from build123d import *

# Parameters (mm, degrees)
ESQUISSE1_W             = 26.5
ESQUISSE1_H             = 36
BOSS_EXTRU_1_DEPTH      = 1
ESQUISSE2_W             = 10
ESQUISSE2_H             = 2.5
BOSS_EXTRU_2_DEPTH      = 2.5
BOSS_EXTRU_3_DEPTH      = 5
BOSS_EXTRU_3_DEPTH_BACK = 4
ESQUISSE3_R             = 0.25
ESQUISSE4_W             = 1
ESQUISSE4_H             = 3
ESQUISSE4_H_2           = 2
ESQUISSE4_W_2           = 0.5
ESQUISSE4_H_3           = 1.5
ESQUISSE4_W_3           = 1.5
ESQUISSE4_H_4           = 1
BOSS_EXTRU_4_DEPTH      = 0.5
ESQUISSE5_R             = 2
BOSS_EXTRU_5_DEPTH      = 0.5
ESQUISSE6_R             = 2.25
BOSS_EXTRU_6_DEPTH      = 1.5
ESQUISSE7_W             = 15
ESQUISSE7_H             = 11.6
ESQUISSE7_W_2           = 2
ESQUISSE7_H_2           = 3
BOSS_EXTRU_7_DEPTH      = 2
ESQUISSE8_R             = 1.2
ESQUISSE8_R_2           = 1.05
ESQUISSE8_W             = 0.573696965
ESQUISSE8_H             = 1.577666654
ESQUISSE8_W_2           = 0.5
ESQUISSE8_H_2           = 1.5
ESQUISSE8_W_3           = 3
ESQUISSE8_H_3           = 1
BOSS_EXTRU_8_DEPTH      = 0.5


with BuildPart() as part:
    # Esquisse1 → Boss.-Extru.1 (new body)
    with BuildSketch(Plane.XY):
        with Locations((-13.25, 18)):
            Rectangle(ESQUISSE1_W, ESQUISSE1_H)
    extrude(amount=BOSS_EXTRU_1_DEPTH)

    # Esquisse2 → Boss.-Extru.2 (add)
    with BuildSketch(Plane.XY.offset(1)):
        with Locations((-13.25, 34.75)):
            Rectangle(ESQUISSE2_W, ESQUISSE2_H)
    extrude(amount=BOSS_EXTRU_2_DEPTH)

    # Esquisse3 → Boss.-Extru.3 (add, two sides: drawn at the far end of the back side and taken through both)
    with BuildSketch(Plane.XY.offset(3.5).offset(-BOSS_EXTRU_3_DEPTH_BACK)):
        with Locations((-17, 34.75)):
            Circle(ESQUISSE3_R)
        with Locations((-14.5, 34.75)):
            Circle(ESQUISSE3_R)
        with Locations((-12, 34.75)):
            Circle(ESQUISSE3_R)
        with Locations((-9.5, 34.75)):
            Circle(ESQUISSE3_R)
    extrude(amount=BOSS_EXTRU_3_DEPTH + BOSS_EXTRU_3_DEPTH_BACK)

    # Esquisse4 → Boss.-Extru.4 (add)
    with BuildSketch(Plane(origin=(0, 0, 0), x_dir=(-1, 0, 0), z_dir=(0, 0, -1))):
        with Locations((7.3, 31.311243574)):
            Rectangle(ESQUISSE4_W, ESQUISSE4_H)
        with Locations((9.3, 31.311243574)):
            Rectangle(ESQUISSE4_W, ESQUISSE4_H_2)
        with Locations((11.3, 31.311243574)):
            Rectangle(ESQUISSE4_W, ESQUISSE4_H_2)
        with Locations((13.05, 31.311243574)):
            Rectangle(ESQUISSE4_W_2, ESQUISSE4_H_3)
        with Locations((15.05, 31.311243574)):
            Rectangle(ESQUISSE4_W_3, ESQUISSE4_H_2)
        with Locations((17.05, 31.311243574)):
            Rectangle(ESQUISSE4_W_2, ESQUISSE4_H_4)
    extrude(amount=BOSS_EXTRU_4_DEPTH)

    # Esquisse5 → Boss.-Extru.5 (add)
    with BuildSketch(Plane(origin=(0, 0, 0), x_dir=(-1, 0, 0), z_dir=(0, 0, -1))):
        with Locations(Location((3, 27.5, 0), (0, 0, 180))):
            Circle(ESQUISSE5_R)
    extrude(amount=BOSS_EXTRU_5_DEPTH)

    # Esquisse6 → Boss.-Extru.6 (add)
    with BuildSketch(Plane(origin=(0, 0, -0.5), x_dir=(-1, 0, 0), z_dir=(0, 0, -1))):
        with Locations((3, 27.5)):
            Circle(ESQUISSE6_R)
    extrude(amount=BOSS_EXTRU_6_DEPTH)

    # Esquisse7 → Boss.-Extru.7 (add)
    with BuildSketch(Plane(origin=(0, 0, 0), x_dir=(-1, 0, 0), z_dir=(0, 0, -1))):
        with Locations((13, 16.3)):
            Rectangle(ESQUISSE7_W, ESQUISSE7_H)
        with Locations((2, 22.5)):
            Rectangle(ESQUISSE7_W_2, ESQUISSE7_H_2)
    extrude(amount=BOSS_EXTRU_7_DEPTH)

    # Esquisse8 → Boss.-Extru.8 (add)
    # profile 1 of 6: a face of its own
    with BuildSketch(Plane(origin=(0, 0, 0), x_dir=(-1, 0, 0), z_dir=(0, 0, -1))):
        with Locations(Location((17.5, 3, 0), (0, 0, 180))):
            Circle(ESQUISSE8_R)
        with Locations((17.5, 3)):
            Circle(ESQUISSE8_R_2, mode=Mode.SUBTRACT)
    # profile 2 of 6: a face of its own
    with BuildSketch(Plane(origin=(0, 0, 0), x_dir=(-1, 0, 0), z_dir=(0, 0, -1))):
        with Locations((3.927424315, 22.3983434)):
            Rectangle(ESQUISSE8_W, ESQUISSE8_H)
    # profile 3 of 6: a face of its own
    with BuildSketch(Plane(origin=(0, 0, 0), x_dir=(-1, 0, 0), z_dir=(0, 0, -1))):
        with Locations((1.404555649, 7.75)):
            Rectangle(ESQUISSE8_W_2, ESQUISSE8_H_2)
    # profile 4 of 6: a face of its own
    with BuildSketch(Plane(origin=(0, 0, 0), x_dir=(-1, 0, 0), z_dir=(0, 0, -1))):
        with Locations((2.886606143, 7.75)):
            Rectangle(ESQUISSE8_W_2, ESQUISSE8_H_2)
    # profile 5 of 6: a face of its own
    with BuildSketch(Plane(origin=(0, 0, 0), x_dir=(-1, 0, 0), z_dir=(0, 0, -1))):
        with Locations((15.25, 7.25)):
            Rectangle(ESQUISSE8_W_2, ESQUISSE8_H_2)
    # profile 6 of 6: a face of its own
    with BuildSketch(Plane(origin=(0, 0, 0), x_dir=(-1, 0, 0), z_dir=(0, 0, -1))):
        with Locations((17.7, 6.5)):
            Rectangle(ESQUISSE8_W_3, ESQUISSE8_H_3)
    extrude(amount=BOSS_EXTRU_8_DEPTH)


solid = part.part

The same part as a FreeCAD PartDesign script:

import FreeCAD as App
import Part
import Sketcher
from FreeCAD import Vector

doc = App.newDocument("Part")
params = doc.addObject("Spreadsheet::Sheet", "Params")
for row, (alias, value) in enumerate([
    ("sketch1_height", "36 mm"),
    ("sketch1_width", "26.5 mm"),
    ("pad1_length", "1 mm"),
    ("sketch2_width", "10 mm"),
    ("sketch2_height", "2.5 mm"),
    ("pad2_length", "2.5 mm"),
    ("sketch3_diameter", "0.5 mm"),
    ("pad3_length", "5 mm"),
    ("pad3_length2", "4 mm"),
    ("sketch4_width", "1 mm"),
    ("sketch4_height", "3 mm"),
    ("sketch4_height2", "2 mm"),
    ("sketch4_width2", "0.5 mm"),
    ("sketch4_width3", "1.5 mm"),
    ("pad4_length", "0.5 mm"),
    ("sketch5_diameter", "4 mm"),
    ("pad5_length", "0.5 mm"),
    ("sketch6_diameter", "4.5 mm"),
    ("pad6_length", "1.5 mm"),
    ("sketch7_width", "15 mm"),
    ("sketch7_width2", "2 mm"),
    ("sketch7_height", "3 mm"),
    ("sketch7_height2", "11.6 mm"),
    ("pad7_length", "2 mm"),
    ("sketch8_diameter", "2.4 mm"),
    ("sketch8_diameter2", "2.1 mm"),
    ("sketch8_width", "3 mm"),
    ("sketch8_height", "1 mm"),
    ("sketch8_width2", "0.5 mm"),
    ("pad8_length", "0.5 mm"),
], start=1):
    params.set(f"A{row}", alias)
    params.set(f"B{row}", "=" + value)
    params.setAlias(f"B{row}", alias)

body = doc.addObject("PartDesign::Body", "Body")

sketch1 = body.newObject("Sketcher::SketchObject", "Sketch")
sketch1.AttachmentSupport = (doc.getObject("XY_Plane"), [""])
sketch1.MapMode = "FlatFace"
sketch1.addGeometry(Part.LineSegment(Vector(-26.5, 36, 0), Vector(-26.5, 0, 0)), False)
sketch1.addGeometry(Part.LineSegment(Vector(-26.5, 0, 0), Vector(0, 0, 0)), False)
sketch1.addGeometry(Part.LineSegment(Vector(0, 0, 0), Vector(0, 36, 0)), False)
sketch1.addGeometry(Part.LineSegment(Vector(0, 36, 0), Vector(-26.5, 36, 0)), False)
sketch1.addConstraint(Sketcher.Constraint("Coincident", 0, 2, 1, 1))
sketch1.addConstraint(Sketcher.Constraint("Coincident", 1, 2, 2, 1))
sketch1.addConstraint(Sketcher.Constraint("Coincident", 2, 2, 3, 1))
sketch1.addConstraint(Sketcher.Constraint("Coincident", 3, 2, 0, 1))
sketch1.addConstraint(Sketcher.Constraint("Vertical", 0))
sketch1.addConstraint(Sketcher.Constraint("Horizontal", 1))
sketch1.addConstraint(Sketcher.Constraint("Vertical", 2))
sketch1.addConstraint(Sketcher.Constraint("Horizontal", 3))
sketch1.addConstraint(Sketcher.Constraint("Coincident", 1, 2, -1, 1))
sketch1.addConstraint(Sketcher.Constraint("DistanceY", 0, 2, 0, 1, 36.0))
sketch1.addConstraint(Sketcher.Constraint("DistanceX", 1, 1, 1, 2, 26.5))
sketch1.setExpression("Constraints[9]", "Params.sketch1_height")
sketch1.setExpression("Constraints[10]", "Params.sketch1_width")
pad1 = body.newObject("PartDesign::Pad", "Pad")
pad1.Profile = sketch1
pad1.setExpression("Length", "Params.pad1_length")

sketch2 = body.newObject("Sketcher::SketchObject", "Sketch001")
sketch2.AttachmentSupport = (doc.getObject("XY_Plane"), [""])
sketch2.MapMode = "FlatFace"
sketch2.AttachmentOffset = App.Placement(Vector(0, 0, 1), App.Rotation())
sketch2.addGeometry(Part.LineSegment(Vector(-18.25, 36, 0), Vector(-18.25, 33.5, 0)), False)
sketch2.addGeometry(Part.LineSegment(Vector(-18.25, 33.5, 0), Vector(-8.25, 33.5, 0)), False)
sketch2.addGeometry(Part.LineSegment(Vector(-8.25, 33.5, 0), Vector(-8.25, 36, 0)), False)
sketch2.addGeometry(Part.LineSegment(Vector(-8.25, 36, 0), Vector(-18.25, 36, 0)), False)
sketch2.addConstraint(Sketcher.Constraint("Coincident", 0, 2, 1, 1))
sketch2.addConstraint(Sketcher.Constraint("Coincident", 1, 2, 2, 1))
sketch2.addConstraint(Sketcher.Constraint("Coincident", 2, 2, 3, 1))
sketch2.addConstraint(Sketcher.Constraint("Coincident", 3, 2, 0, 1))
sketch2.addConstraint(Sketcher.Constraint("Vertical", 0))
sketch2.addConstraint(Sketcher.Constraint("Horizontal", 1))
sketch2.addConstraint(Sketcher.Constraint("Vertical", 2))
sketch2.addConstraint(Sketcher.Constraint("Horizontal", 3))
sketch2.addConstraint(Sketcher.Constraint("DistanceX", 1, 1, 1, 2, 10.0))
sketch2.addConstraint(Sketcher.Constraint("DistanceY", 0, 2, 0, 1, 2.5))
sketch2.addConstraint(Sketcher.Constraint("DistanceY", -1, 1, 2, 2, 36.0))
sketch2.addConstraint(Sketcher.Constraint("DistanceX", 0, 2, -1, 1, 18.25))
sketch2.setExpression("Constraints[8]", "Params.sketch2_width")
sketch2.setExpression("Constraints[9]", "Params.sketch2_height")
pad2 = body.newObject("PartDesign::Pad", "Pad001")
pad2.Profile = sketch2
pad2.setExpression("Length", "Params.pad2_length")

sketch3 = body.newObject("Sketcher::SketchObject", "Sketch002")
sketch3.AttachmentSupport = (doc.getObject("XY_Plane"), [""])
sketch3.MapMode = "FlatFace"
sketch3.AttachmentOffset = App.Placement(Vector(0, 0, 3.5), App.Rotation())
sketch3.addGeometry(Part.Circle(Vector(-17, 34.75, 0), Vector(0, 0, 1), 0.25), False)
sketch3.addGeometry(Part.Circle(Vector(-14.5, 34.75, 0), Vector(0, 0, 1), 0.25), False)
sketch3.addGeometry(Part.Circle(Vector(-12, 34.75, 0), Vector(0, 0, 1), 0.25), False)
sketch3.addGeometry(Part.Circle(Vector(-9.5, 34.75, 0), Vector(0, 0, 1), 0.25), False)
sketch3.addConstraint(Sketcher.Constraint("Equal", 0, 1))
sketch3.addConstraint(Sketcher.Constraint("Equal", 1, 2))
sketch3.addConstraint(Sketcher.Constraint("Equal", 2, 3))
sketch3.addConstraint(Sketcher.Constraint("Horizontal", 0, 3, 1, 3))
sketch3.addConstraint(Sketcher.Constraint("Horizontal", 1, 3, 2, 3))
sketch3.addConstraint(Sketcher.Constraint("Horizontal", 2, 3, 3, 3))
sketch3.addConstraint(Sketcher.Constraint("Diameter", 0, 0.5))
sketch3.addConstraint(Sketcher.Constraint("DistanceX", 0, 3, -1, 1, 17.0))
sketch3.addConstraint(Sketcher.Constraint("DistanceX", 2, 3, -1, 1, 12.0))
sketch3.addConstraint(Sketcher.Constraint("DistanceX", 1, 3, 3, 3, 5.0))
sketch3.addConstraint(Sketcher.Constraint("DistanceX", 1, 3, -1, 1, 14.5))
sketch3.addConstraint(Sketcher.Constraint("DistanceY", -1, 1, 0, 3, 34.75))
sketch3.setExpression("Constraints[6]", "Params.sketch3_diameter")
pad3 = body.newObject("PartDesign::Pad", "Pad002")
pad3.Profile = sketch3
pad3.Type = "TwoLengths"
pad3.setExpression("Length", "Params.pad3_length")
pad3.setExpression("Length2", "Params.pad3_length2")

sketch4 = body.newObject("Sketcher::SketchObject", "Sketch003")
sketch4.AttachmentSupport = (doc.getObject("XY_Plane"), [""])
sketch4.MapMode = "FlatFace"
sketch4.addGeometry(Part.LineSegment(Vector(-6.8, 32.811244, 0), Vector(-6.8, 29.811244, 0)), False)
sketch4.addGeometry(Part.LineSegment(Vector(-6.8, 29.811244, 0), Vector(-7.8, 29.811244, 0)), False)
sketch4.addGeometry(Part.LineSegment(Vector(-7.8, 29.811244, 0), Vector(-7.8, 32.811244, 0)), False)
sketch4.addGeometry(Part.LineSegment(Vector(-7.8, 32.811244, 0), Vector(-6.8, 32.811244, 0)), False)
sketch4.addGeometry(Part.LineSegment(Vector(-8.8, 32.311244, 0), Vector(-8.8, 30.311244, 0)), False)
sketch4.addGeometry(Part.LineSegment(Vector(-8.8, 30.311244, 0), Vector(-9.8, 30.311244, 0)), False)
sketch4.addGeometry(Part.LineSegment(Vector(-9.8, 30.311244, 0), Vector(-9.8, 32.311244, 0)), False)
sketch4.addGeometry(Part.LineSegment(Vector(-9.8, 32.311244, 0), Vector(-8.8, 32.311244, 0)), False)
sketch4.addGeometry(Part.LineSegment(Vector(-10.8, 32.311244, 0), Vector(-10.8, 30.311244, 0)), False)
sketch4.addGeometry(Part.LineSegment(Vector(-10.8, 30.311244, 0), Vector(-11.8, 30.311244, 0)), False)
sketch4.addGeometry(Part.LineSegment(Vector(-11.8, 30.311244, 0), Vector(-11.8, 32.311244, 0)), False)
sketch4.addGeometry(Part.LineSegment(Vector(-11.8, 32.311244, 0), Vector(-10.8, 32.311244, 0)), False)
sketch4.addGeometry(Part.LineSegment(Vector(-12.8, 32.061244, 0), Vector(-12.8, 30.561244, 0)), False)
sketch4.addGeometry(Part.LineSegment(Vector(-12.8, 30.561244, 0), Vector(-13.3, 30.561244, 0)), False)
sketch4.addGeometry(Part.LineSegment(Vector(-13.3, 30.561244, 0), Vector(-13.3, 32.061244, 0)), False)
sketch4.addGeometry(Part.LineSegment(Vector(-13.3, 32.061244, 0), Vector(-12.8, 32.061244, 0)), False)
sketch4.addGeometry(Part.LineSegment(Vector(-14.3, 32.311244, 0), Vector(-14.3, 30.311244, 0)), False)
sketch4.addGeometry(Part.LineSegment(Vector(-14.3, 30.311244, 0), Vector(-15.8, 30.311244, 0)), False)
sketch4.addGeometry(Part.LineSegment(Vector(-15.8, 30.311244, 0), Vector(-15.8, 32.311244, 0)), False)
sketch4.addGeometry(Part.LineSegment(Vector(-15.8, 32.311244, 0), Vector(-14.3, 32.311244, 0)), False)
sketch4.addGeometry(Part.LineSegment(Vector(-16.8, 31.811244, 0), Vector(-16.8, 30.811244, 0)), False)
sketch4.addGeometry(Part.LineSegment(Vector(-16.8, 30.811244, 0), Vector(-17.3, 30.811244, 0)), False)
sketch4.addGeometry(Part.LineSegment(Vector(-17.3, 30.811244, 0), Vector(-17.3, 31.811244, 0)), False)
sketch4.addGeometry(Part.LineSegment(Vector(-17.3, 31.811244, 0), Vector(-16.8, 31.811244, 0)), False)
sketch4.addConstraint(Sketcher.Constraint("Coincident", 0, 2, 1, 1))
sketch4.addConstraint(Sketcher.Constraint("Coincident", 1, 2, 2, 1))
sketch4.addConstraint(Sketcher.Constraint("Coincident", 2, 2, 3, 1))
sketch4.addConstraint(Sketcher.Constraint("Coincident", 3, 2, 0, 1))
sketch4.addConstraint(Sketcher.Constraint("Coincident", 4, 2, 5, 1))
sketch4.addConstraint(Sketcher.Constraint("Coincident", 5, 2, 6, 1))
sketch4.addConstraint(Sketcher.Constraint("Coincident", 6, 2, 7, 1))
sketch4.addConstraint(Sketcher.Constraint("Coincident", 7, 2, 4, 1))
sketch4.addConstraint(Sketcher.Constraint("Coincident", 8, 2, 9, 1))
sketch4.addConstraint(Sketcher.Constraint("Coincident", 9, 2, 10, 1))
sketch4.addConstraint(Sketcher.Constraint("Coincident", 10, 2, 11, 1))
sketch4.addConstraint(Sketcher.Constraint("Coincident", 11, 2, 8, 1))
sketch4.addConstraint(Sketcher.Constraint("Coincident", 12, 2, 13, 1))
sketch4.addConstraint(Sketcher.Constraint("Coincident", 13, 2, 14, 1))
sketch4.addConstraint(Sketcher.Constraint("Coincident", 14, 2, 15, 1))
sketch4.addConstraint(Sketcher.Constraint("Coincident", 15, 2, 12, 1))
sketch4.addConstraint(Sketcher.Constraint("Coincident", 16, 2, 17, 1))
sketch4.addConstraint(Sketcher.Constraint("Coincident", 17, 2, 18, 1))
sketch4.addConstraint(Sketcher.Constraint("Coincident", 18, 2, 19, 1))
sketch4.addConstraint(Sketcher.Constraint("Coincident", 19, 2, 16, 1))
sketch4.addConstraint(Sketcher.Constraint("Coincident", 20, 2, 21, 1))
sketch4.addConstraint(Sketcher.Constraint("Coincident", 21, 2, 22, 1))
sketch4.addConstraint(Sketcher.Constraint("Coincident", 22, 2, 23, 1))
sketch4.addConstraint(Sketcher.Constraint("Coincident", 23, 2, 20, 1))
sketch4.addConstraint(Sketcher.Constraint("Vertical", 0))
sketch4.addConstraint(Sketcher.Constraint("Horizontal", 1))
sketch4.addConstraint(Sketcher.Constraint("Vertical", 2))
sketch4.addConstraint(Sketcher.Constraint("Horizontal", 3))
sketch4.addConstraint(Sketcher.Constraint("Vertical", 4))
sketch4.addConstraint(Sketcher.Constraint("Horizontal", 5))
sketch4.addConstraint(Sketcher.Constraint("Vertical", 6))
sketch4.addConstraint(Sketcher.Constraint("Horizontal", 7))
sketch4.addConstraint(Sketcher.Constraint("Vertical", 8))
sketch4.addConstraint(Sketcher.Constraint("Horizontal", 9))
sketch4.addConstraint(Sketcher.Constraint("Vertical", 10))
sketch4.addConstraint(Sketcher.Constraint("Horizontal", 11))
sketch4.addConstraint(Sketcher.Constraint("Vertical", 12))
sketch4.addConstraint(Sketcher.Constraint("Horizontal", 13))
sketch4.addConstraint(Sketcher.Constraint("Vertical", 14))
sketch4.addConstraint(Sketcher.Constraint("Horizontal", 15))
sketch4.addConstraint(Sketcher.Constraint("Vertical", 16))
sketch4.addConstraint(Sketcher.Constraint("Horizontal", 17))
sketch4.addConstraint(Sketcher.Constraint("Vertical", 18))
sketch4.addConstraint(Sketcher.Constraint("Horizontal", 19))
sketch4.addConstraint(Sketcher.Constraint("Vertical", 20))
sketch4.addConstraint(Sketcher.Constraint("Horizontal", 21))
sketch4.addConstraint(Sketcher.Constraint("Vertical", 22))
sketch4.addConstraint(Sketcher.Constraint("Horizontal", 23))
sketch4.addConstraint(Sketcher.Constraint("Horizontal", 5, 2, 8, 2))
sketch4.addConstraint(Sketcher.Constraint("Horizontal", 7, 2, 10, 2))
sketch4.addConstraint(Sketcher.Constraint("Horizontal", 9, 2, 16, 2))
sketch4.addConstraint(Sketcher.Constraint("Horizontal", 11, 2, 18, 2))
sketch4.addConstraint(Sketcher.Constraint("Equal", 3, 5))
sketch4.addConstraint(Sketcher.Constraint("Equal", 7, 9))
sketch4.addConstraint(Sketcher.Constraint("Equal", 15, 21))
sketch4.addConstraint(Sketcher.Constraint("Equal", 19, 12))
sketch4.addConstraint(Sketcher.Constraint("Equal", 11, 20))
sketch4.addConstraint(Sketcher.Constraint("DistanceX", 1, 2, 1, 1, 1.0))
sketch4.addConstraint(Sketcher.Constraint("DistanceY", 0, 2, 0, 1, 3.0))
sketch4.addConstraint(Sketcher.Constraint("DistanceY", 4, 2, 4, 1, 2.0))
sketch4.addConstraint(Sketcher.Constraint("DistanceX", 13, 2, 13, 1, 0.5))
sketch4.addConstraint(Sketcher.Constraint("DistanceX", 17, 2, 17, 1, 1.5))
sketch4.addConstraint(Sketcher.Constraint("DistanceX", 4, 2, 1, 2, 1.0))
sketch4.addConstraint(Sketcher.Constraint("DistanceX", 8, 2, 5, 2, 1.0))
sketch4.addConstraint(Sketcher.Constraint("DistanceX", 12, 2, 9, 2, 1.0))
sketch4.addConstraint(Sketcher.Constraint("DistanceX", 16, 2, 13, 2, 1.0))
sketch4.addConstraint(Sketcher.Constraint("DistanceX", 20, 2, 17, 2, 1.0))
sketch4.addConstraint(Sketcher.Constraint("DistanceX", 0, 2, -1, 1, 6.8))
sketch4.addConstraint(Sketcher.Constraint("DistanceY", 1, 2, 4, 2, 0.5))
sketch4.addConstraint(Sketcher.Constraint("DistanceY", 17, 2, 20, 2, 0.5))
sketch4.addConstraint(Sketcher.Constraint("DistanceY", 9, 2, 12, 2, 0.25))
sketch4.addConstraint(Sketcher.Constraint("DistanceY", -1, 1, 0, 2, 29.811244))
sketch4.setExpression("Constraints[57]", "Params.sketch4_width")
sketch4.setExpression("Constraints[58]", "Params.sketch4_height")
sketch4.setExpression("Constraints[59]", "Params.sketch4_height2")
sketch4.setExpression("Constraints[60]", "Params.sketch4_width2")
sketch4.setExpression("Constraints[61]", "Params.sketch4_width3")
pad4 = body.newObject("PartDesign::Pad", "Pad003")
pad4.Profile = sketch4
pad4.setExpression("Length", "Params.pad4_length")
pad4.Reversed = True

sketch5 = body.newObject("Sketcher::SketchObject", "Sketch004")
sketch5.AttachmentSupport = (doc.getObject("XY_Plane"), [""])
sketch5.MapMode = "FlatFace"
sketch5.addGeometry(Part.Circle(Vector(-3, 27.5, 0), Vector(0, 0, 1), 2), False)
sketch5.addConstraint(Sketcher.Constraint("Diameter", 0, 4.0))
sketch5.addConstraint(Sketcher.Constraint("DistanceX", 0, 3, -1, 1, 3.0))
sketch5.addConstraint(Sketcher.Constraint("DistanceY", -1, 1, 0, 3, 27.5))
sketch5.setExpression("Constraints[0]", "Params.sketch5_diameter")
pad5 = body.newObject("PartDesign::Pad", "Pad004")
pad5.Profile = sketch5
pad5.setExpression("Length", "Params.pad5_length")
pad5.Reversed = True

sketch6 = body.newObject("Sketcher::SketchObject", "Sketch005")
sketch6.AttachmentSupport = (doc.getObject("XY_Plane"), [""])
sketch6.MapMode = "FlatFace"
sketch6.AttachmentOffset = App.Placement(Vector(0, 0, -0.5), App.Rotation())
sketch6.addGeometry(Part.Circle(Vector(-3, 27.5, 0), Vector(0, 0, 1), 2.25), False)
sketch6.addConstraint(Sketcher.Constraint("Diameter", 0, 4.5))
sketch6.addConstraint(Sketcher.Constraint("DistanceX", 0, 3, -1, 1, 3.0))
sketch6.addConstraint(Sketcher.Constraint("DistanceY", -1, 1, 0, 3, 27.5))
sketch6.setExpression("Constraints[0]", "Params.sketch6_diameter")
pad6 = body.newObject("PartDesign::Pad", "Pad005")
pad6.Profile = sketch6
pad6.setExpression("Length", "Params.pad6_length")
pad6.Reversed = True

sketch7 = body.newObject("Sketcher::SketchObject", "Sketch006")
sketch7.AttachmentSupport = (doc.getObject("XY_Plane"), [""])
sketch7.MapMode = "FlatFace"
sketch7.addGeometry(Part.LineSegment(Vector(-5.5, 22.1, 0), Vector(-5.5, 10.5, 0)), False)
sketch7.addGeometry(Part.LineSegment(Vector(-5.5, 10.5, 0), Vector(-20.5, 10.5, 0)), False)
sketch7.addGeometry(Part.LineSegment(Vector(-20.5, 10.5, 0), Vector(-20.5, 22.1, 0)), False)
sketch7.addGeometry(Part.LineSegment(Vector(-20.5, 22.1, 0), Vector(-5.5, 22.1, 0)), False)
sketch7.addGeometry(Part.LineSegment(Vector(-1, 24, 0), Vector(-1, 21, 0)), False)
sketch7.addGeometry(Part.LineSegment(Vector(-1, 21, 0), Vector(-3, 21, 0)), False)
sketch7.addGeometry(Part.LineSegment(Vector(-3, 21, 0), Vector(-3, 24, 0)), False)
sketch7.addGeometry(Part.LineSegment(Vector(-3, 24, 0), Vector(-1, 24, 0)), False)
sketch7.addConstraint(Sketcher.Constraint("Coincident", 0, 2, 1, 1))
sketch7.addConstraint(Sketcher.Constraint("Coincident", 1, 2, 2, 1))
sketch7.addConstraint(Sketcher.Constraint("Coincident", 2, 2, 3, 1))
sketch7.addConstraint(Sketcher.Constraint("Coincident", 3, 2, 0, 1))
sketch7.addConstraint(Sketcher.Constraint("Coincident", 4, 2, 5, 1))
sketch7.addConstraint(Sketcher.Constraint("Coincident", 5, 2, 6, 1))
sketch7.addConstraint(Sketcher.Constraint("Coincident", 6, 2, 7, 1))
sketch7.addConstraint(Sketcher.Constraint("Coincident", 7, 2, 4, 1))
sketch7.addConstraint(Sketcher.Constraint("Vertical", 0))
sketch7.addConstraint(Sketcher.Constraint("Horizontal", 1))
sketch7.addConstraint(Sketcher.Constraint("Vertical", 2))
sketch7.addConstraint(Sketcher.Constraint("Horizontal", 3))
sketch7.addConstraint(Sketcher.Constraint("Vertical", 4))
sketch7.addConstraint(Sketcher.Constraint("Horizontal", 5))
sketch7.addConstraint(Sketcher.Constraint("Vertical", 6))
sketch7.addConstraint(Sketcher.Constraint("Horizontal", 7))
sketch7.addConstraint(Sketcher.Constraint("DistanceX", 1, 2, 1, 1, 15.0))
sketch7.addConstraint(Sketcher.Constraint("DistanceX", 5, 2, 5, 1, 2.0))
sketch7.addConstraint(Sketcher.Constraint("DistanceY", 4, 2, 4, 1, 3.0))
sketch7.addConstraint(Sketcher.Constraint("DistanceY", 0, 2, 0, 1, 11.6))
sketch7.addConstraint(Sketcher.Constraint("DistanceX", 4, 2, -1, 1, 1.0))
sketch7.addConstraint(Sketcher.Constraint("DistanceY", -1, 1, 4, 2, 21.0))
sketch7.addConstraint(Sketcher.Constraint("DistanceX", 0, 2, -1, 1, 5.5))
sketch7.addConstraint(Sketcher.Constraint("DistanceY", -1, 1, 0, 2, 10.5))
sketch7.setExpression("Constraints[16]", "Params.sketch7_width")
sketch7.setExpression("Constraints[17]", "Params.sketch7_width2")
sketch7.setExpression("Constraints[18]", "Params.sketch7_height")
sketch7.setExpression("Constraints[19]", "Params.sketch7_height2")
pad7 = body.newObject("PartDesign::Pad", "Pad006")
pad7.Profile = sketch7
pad7.setExpression("Length", "Params.pad7_length")
pad7.Reversed = True

sketch8 = body.newObject("Sketcher::SketchObject", "Sketch007")
sketch8.AttachmentSupport = (doc.getObject("XY_Plane"), [""])
sketch8.MapMode = "FlatFace"
sketch8.addGeometry(Part.Circle(Vector(-17.5, 3, 0), Vector(0, 0, 1), 1.2), False)
sketch8.addGeometry(Part.Circle(Vector(-17.5, 3, 0), Vector(0, 0, 1), 1.05), False)
sketch8.addGeometry(Part.LineSegment(Vector(-3.640576, 23.187177, 0), Vector(-3.640576, 21.60951, 0)), False)
sketch8.addGeometry(Part.LineSegment(Vector(-3.640576, 21.60951, 0), Vector(-4.214273, 21.60951, 0)), False)
sketch8.addGeometry(Part.LineSegment(Vector(-4.214273, 21.60951, 0), Vector(-4.214273, 23.187177, 0)), False)
sketch8.addGeometry(Part.LineSegment(Vector(-4.214273, 23.187177, 0), Vector(-3.640576, 23.187177, 0)), False)
sketch8.addGeometry(Part.LineSegment(Vector(-1.154556, 8.5, 0), Vector(-1.154556, 7, 0)), False)
sketch8.addGeometry(Part.LineSegment(Vector(-1.154556, 7, 0), Vector(-1.654556, 7, 0)), False)
sketch8.addGeometry(Part.LineSegment(Vector(-1.654556, 7, 0), Vector(-1.654556, 8.5, 0)), False)
sketch8.addGeometry(Part.LineSegment(Vector(-1.654556, 8.5, 0), Vector(-1.154556, 8.5, 0)), False)
sketch8.addGeometry(Part.LineSegment(Vector(-2.636606, 8.5, 0), Vector(-2.636606, 7, 0)), False)
sketch8.addGeometry(Part.LineSegment(Vector(-2.636606, 7, 0), Vector(-3.136606, 7, 0)), False)
sketch8.addGeometry(Part.LineSegment(Vector(-3.136606, 7, 0), Vector(-3.136606, 8.5, 0)), False)
sketch8.addGeometry(Part.LineSegment(Vector(-3.136606, 8.5, 0), Vector(-2.636606, 8.5, 0)), False)
sketch8.addGeometry(Part.LineSegment(Vector(-15, 8, 0), Vector(-15, 6.5, 0)), False)
sketch8.addGeometry(Part.LineSegment(Vector(-15, 6.5, 0), Vector(-15.5, 6.5, 0)), False)
sketch8.addGeometry(Part.LineSegment(Vector(-15.5, 6.5, 0), Vector(-15.5, 8, 0)), False)
sketch8.addGeometry(Part.LineSegment(Vector(-15.5, 8, 0), Vector(-15, 8, 0)), False)
sketch8.addGeometry(Part.LineSegment(Vector(-16.2, 7, 0), Vector(-16.2, 6, 0)), False)
sketch8.addGeometry(Part.LineSegment(Vector(-16.2, 6, 0), Vector(-19.2, 6, 0)), False)
sketch8.addGeometry(Part.LineSegment(Vector(-19.2, 6, 0), Vector(-19.2, 7, 0)), False)
sketch8.addGeometry(Part.LineSegment(Vector(-19.2, 7, 0), Vector(-16.2, 7, 0)), False)
sketch8.addConstraint(Sketcher.Constraint("Coincident", 2, 2, 3, 1))
sketch8.addConstraint(Sketcher.Constraint("Coincident", 3, 2, 4, 1))
sketch8.addConstraint(Sketcher.Constraint("Coincident", 4, 2, 5, 1))
sketch8.addConstraint(Sketcher.Constraint("Coincident", 5, 2, 2, 1))
sketch8.addConstraint(Sketcher.Constraint("Coincident", 6, 2, 7, 1))
sketch8.addConstraint(Sketcher.Constraint("Coincident", 7, 2, 8, 1))
sketch8.addConstraint(Sketcher.Constraint("Coincident", 8, 2, 9, 1))
sketch8.addConstraint(Sketcher.Constraint("Coincident", 9, 2, 6, 1))
sketch8.addConstraint(Sketcher.Constraint("Coincident", 10, 2, 11, 1))
sketch8.addConstraint(Sketcher.Constraint("Coincident", 11, 2, 12, 1))
sketch8.addConstraint(Sketcher.Constraint("Coincident", 12, 2, 13, 1))
sketch8.addConstraint(Sketcher.Constraint("Coincident", 13, 2, 10, 1))
sketch8.addConstraint(Sketcher.Constraint("Coincident", 14, 2, 15, 1))
sketch8.addConstraint(Sketcher.Constraint("Coincident", 15, 2, 16, 1))
sketch8.addConstraint(Sketcher.Constraint("Coincident", 16, 2, 17, 1))
sketch8.addConstraint(Sketcher.Constraint("Coincident", 17, 2, 14, 1))
sketch8.addConstraint(Sketcher.Constraint("Coincident", 18, 2, 19, 1))
sketch8.addConstraint(Sketcher.Constraint("Coincident", 19, 2, 20, 1))
sketch8.addConstraint(Sketcher.Constraint("Coincident", 20, 2, 21, 1))
sketch8.addConstraint(Sketcher.Constraint("Coincident", 21, 2, 18, 1))
sketch8.addConstraint(Sketcher.Constraint("Vertical", 2))
sketch8.addConstraint(Sketcher.Constraint("Horizontal", 3))
sketch8.addConstraint(Sketcher.Constraint("Vertical", 4))
sketch8.addConstraint(Sketcher.Constraint("Horizontal", 5))
sketch8.addConstraint(Sketcher.Constraint("Vertical", 6))
sketch8.addConstraint(Sketcher.Constraint("Horizontal", 7))
sketch8.addConstraint(Sketcher.Constraint("Vertical", 8))
sketch8.addConstraint(Sketcher.Constraint("Horizontal", 9))
sketch8.addConstraint(Sketcher.Constraint("Vertical", 10))
sketch8.addConstraint(Sketcher.Constraint("Horizontal", 11))
sketch8.addConstraint(Sketcher.Constraint("Vertical", 12))
sketch8.addConstraint(Sketcher.Constraint("Horizontal", 13))
sketch8.addConstraint(Sketcher.Constraint("Vertical", 14))
sketch8.addConstraint(Sketcher.Constraint("Horizontal", 15))
sketch8.addConstraint(Sketcher.Constraint("Vertical", 16))
sketch8.addConstraint(Sketcher.Constraint("Horizontal", 17))
sketch8.addConstraint(Sketcher.Constraint("Vertical", 18))
sketch8.addConstraint(Sketcher.Constraint("Horizontal", 19))
sketch8.addConstraint(Sketcher.Constraint("Vertical", 20))
sketch8.addConstraint(Sketcher.Constraint("Horizontal", 21))
sketch8.addConstraint(Sketcher.Constraint("Coincident", 1, 3, 0, 3))
sketch8.addConstraint(Sketcher.Constraint("Horizontal", 7, 2, 10, 2))
sketch8.addConstraint(Sketcher.Constraint("Horizontal", 9, 2, 12, 2))
sketch8.addConstraint(Sketcher.Constraint("Horizontal", 11, 2, 20, 2))
sketch8.addConstraint(Sketcher.Constraint("Equal", 9, 11))
sketch8.addConstraint(Sketcher.Constraint("Equal", 13, 15))
sketch8.addConstraint(Sketcher.Constraint("Equal", 12, 14))
sketch8.addConstraint(Sketcher.Constraint("Diameter", 0, 2.4))
sketch8.addConstraint(Sketcher.Constraint("Diameter", 1, 2.1))
sketch8.addConstraint(Sketcher.Constraint("DistanceX", 19, 2, 19, 1, 3.0))
sketch8.addConstraint(Sketcher.Constraint("DistanceY", 18, 2, 18, 1, 1.0))
sketch8.addConstraint(Sketcher.Constraint("DistanceX", 7, 2, 7, 1, 0.5))
sketch8.addConstraint(Sketcher.Constraint("DistanceY", 6, 2, 6, 1, 1.5))
sketch8.addConstraint(Sketcher.Constraint("DistanceY", -1, 1, 0, 3, 3.0))
sketch8.addConstraint(Sketcher.Constraint("DistanceY", -1, 1, 6, 2, 7.0))
sketch8.addConstraint(Sketcher.Constraint("DistanceX", 14, 2, -1, 1, 15.0))
sketch8.addConstraint(Sketcher.Constraint("DistanceY", -1, 1, 16, 2, 8.0))
sketch8.addConstraint(Sketcher.Constraint("DistanceX", 0, 3, 15, 2, 2.0))
sketch8.addConstraint(Sketcher.Constraint("DistanceX", 18, 2, -1, 1, 16.2))
sketch8.addConstraint(Sketcher.Constraint("DistanceX", 3, 2, 3, 1, 0.573697))
sketch8.addConstraint(Sketcher.Constraint("DistanceY", 2, 2, 2, 1, 1.577667))
sketch8.addConstraint(Sketcher.Constraint("DistanceY", -1, 1, 2, 2, 21.60951))
sketch8.addConstraint(Sketcher.Constraint("DistanceX", 2, 2, 6, 2, 2.48602))
sketch8.addConstraint(Sketcher.Constraint("DistanceX", 10, 2, 7, 2, 0.98205))
sketch8.addConstraint(Sketcher.Constraint("DistanceX", 2, 2, -1, 1, 3.640576))
sketch8.setExpression("Constraints[47]", "Params.sketch8_diameter")
sketch8.setExpression("Constraints[48]", "Params.sketch8_diameter2")
sketch8.setExpression("Constraints[49]", "Params.sketch8_width")
sketch8.setExpression("Constraints[50]", "Params.sketch8_height")
sketch8.setExpression("Constraints[51]", "Params.sketch8_width2")
pad8 = body.newObject("PartDesign::Pad", "Pad007")
pad8.Profile = sketch8
pad8.setExpression("Length", "Params.pad8_length")
pad8.Reversed = True

doc.recompute()
